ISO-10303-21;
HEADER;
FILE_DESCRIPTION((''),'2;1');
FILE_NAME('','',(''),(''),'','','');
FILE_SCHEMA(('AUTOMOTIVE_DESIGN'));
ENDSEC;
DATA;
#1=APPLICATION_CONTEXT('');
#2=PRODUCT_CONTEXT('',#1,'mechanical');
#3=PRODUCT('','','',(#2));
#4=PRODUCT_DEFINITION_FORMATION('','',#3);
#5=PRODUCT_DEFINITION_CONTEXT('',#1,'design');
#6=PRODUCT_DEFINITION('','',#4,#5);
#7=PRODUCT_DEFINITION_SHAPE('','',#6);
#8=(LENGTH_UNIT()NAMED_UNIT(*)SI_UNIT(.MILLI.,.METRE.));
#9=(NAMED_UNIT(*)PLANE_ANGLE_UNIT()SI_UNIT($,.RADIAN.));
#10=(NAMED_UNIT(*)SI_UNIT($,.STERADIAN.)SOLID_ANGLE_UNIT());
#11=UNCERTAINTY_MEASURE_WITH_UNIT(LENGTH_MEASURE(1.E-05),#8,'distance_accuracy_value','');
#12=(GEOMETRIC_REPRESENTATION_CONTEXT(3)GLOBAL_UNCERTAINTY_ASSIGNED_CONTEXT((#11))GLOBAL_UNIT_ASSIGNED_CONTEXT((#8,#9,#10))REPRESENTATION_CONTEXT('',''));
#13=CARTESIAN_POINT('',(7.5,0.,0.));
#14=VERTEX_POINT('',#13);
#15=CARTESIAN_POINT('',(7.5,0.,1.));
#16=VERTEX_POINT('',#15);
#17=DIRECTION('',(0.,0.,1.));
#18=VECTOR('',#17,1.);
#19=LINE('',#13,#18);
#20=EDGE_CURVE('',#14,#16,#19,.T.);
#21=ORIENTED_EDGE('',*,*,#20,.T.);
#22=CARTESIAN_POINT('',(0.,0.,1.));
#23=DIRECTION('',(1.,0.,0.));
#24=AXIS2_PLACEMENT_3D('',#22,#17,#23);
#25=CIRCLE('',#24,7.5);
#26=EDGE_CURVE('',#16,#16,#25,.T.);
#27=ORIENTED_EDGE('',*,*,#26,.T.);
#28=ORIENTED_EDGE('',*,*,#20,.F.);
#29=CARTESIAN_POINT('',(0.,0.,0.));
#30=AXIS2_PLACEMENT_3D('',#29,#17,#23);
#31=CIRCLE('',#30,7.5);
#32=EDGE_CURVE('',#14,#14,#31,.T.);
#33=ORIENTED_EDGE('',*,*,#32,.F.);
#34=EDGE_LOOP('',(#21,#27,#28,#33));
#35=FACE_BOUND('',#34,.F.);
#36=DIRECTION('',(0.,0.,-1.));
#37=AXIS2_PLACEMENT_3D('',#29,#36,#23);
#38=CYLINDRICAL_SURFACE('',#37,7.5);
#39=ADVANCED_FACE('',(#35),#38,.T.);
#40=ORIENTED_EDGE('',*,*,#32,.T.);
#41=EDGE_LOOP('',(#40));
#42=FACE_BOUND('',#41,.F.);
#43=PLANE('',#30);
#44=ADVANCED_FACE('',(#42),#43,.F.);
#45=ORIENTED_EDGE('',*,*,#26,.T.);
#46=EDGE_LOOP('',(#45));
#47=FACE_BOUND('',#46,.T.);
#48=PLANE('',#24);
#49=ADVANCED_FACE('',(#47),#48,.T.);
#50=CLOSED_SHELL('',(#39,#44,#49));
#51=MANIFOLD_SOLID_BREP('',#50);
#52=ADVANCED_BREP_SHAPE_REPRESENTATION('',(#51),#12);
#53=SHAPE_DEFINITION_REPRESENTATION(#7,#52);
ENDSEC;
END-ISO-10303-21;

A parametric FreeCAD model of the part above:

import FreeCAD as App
import Part
import Sketcher
Q = App.Units.Quantity

doc = App.newDocument("Part")
body = doc.addObject("PartDesign::Body", "Body")

# Sketch on XY plane
sketch1 = body.newObject("Sketcher::SketchObject", "Sketch")
sketch1.AttachmentSupport = (doc.getObject("XY_Plane"), [""])
sketch1.MapMode = "FlatFace"
sketch1.addGeometry(Part.Circle(App.Vector(0, 0, 0), App.Vector(0, 0, 1), 7.5), False)
sketch1.addConstraint(Sketcher.Constraint("Coincident", 0, 3, -1, 1))
sketch1.addConstraint(Sketcher.Constraint("Diameter", 0, Q("15 mm")))
pad1 = body.newObject("PartDesign::Pad", "Pad")
pad1.Profile = sketch1
pad1.Length = 1

doc.recompute()
